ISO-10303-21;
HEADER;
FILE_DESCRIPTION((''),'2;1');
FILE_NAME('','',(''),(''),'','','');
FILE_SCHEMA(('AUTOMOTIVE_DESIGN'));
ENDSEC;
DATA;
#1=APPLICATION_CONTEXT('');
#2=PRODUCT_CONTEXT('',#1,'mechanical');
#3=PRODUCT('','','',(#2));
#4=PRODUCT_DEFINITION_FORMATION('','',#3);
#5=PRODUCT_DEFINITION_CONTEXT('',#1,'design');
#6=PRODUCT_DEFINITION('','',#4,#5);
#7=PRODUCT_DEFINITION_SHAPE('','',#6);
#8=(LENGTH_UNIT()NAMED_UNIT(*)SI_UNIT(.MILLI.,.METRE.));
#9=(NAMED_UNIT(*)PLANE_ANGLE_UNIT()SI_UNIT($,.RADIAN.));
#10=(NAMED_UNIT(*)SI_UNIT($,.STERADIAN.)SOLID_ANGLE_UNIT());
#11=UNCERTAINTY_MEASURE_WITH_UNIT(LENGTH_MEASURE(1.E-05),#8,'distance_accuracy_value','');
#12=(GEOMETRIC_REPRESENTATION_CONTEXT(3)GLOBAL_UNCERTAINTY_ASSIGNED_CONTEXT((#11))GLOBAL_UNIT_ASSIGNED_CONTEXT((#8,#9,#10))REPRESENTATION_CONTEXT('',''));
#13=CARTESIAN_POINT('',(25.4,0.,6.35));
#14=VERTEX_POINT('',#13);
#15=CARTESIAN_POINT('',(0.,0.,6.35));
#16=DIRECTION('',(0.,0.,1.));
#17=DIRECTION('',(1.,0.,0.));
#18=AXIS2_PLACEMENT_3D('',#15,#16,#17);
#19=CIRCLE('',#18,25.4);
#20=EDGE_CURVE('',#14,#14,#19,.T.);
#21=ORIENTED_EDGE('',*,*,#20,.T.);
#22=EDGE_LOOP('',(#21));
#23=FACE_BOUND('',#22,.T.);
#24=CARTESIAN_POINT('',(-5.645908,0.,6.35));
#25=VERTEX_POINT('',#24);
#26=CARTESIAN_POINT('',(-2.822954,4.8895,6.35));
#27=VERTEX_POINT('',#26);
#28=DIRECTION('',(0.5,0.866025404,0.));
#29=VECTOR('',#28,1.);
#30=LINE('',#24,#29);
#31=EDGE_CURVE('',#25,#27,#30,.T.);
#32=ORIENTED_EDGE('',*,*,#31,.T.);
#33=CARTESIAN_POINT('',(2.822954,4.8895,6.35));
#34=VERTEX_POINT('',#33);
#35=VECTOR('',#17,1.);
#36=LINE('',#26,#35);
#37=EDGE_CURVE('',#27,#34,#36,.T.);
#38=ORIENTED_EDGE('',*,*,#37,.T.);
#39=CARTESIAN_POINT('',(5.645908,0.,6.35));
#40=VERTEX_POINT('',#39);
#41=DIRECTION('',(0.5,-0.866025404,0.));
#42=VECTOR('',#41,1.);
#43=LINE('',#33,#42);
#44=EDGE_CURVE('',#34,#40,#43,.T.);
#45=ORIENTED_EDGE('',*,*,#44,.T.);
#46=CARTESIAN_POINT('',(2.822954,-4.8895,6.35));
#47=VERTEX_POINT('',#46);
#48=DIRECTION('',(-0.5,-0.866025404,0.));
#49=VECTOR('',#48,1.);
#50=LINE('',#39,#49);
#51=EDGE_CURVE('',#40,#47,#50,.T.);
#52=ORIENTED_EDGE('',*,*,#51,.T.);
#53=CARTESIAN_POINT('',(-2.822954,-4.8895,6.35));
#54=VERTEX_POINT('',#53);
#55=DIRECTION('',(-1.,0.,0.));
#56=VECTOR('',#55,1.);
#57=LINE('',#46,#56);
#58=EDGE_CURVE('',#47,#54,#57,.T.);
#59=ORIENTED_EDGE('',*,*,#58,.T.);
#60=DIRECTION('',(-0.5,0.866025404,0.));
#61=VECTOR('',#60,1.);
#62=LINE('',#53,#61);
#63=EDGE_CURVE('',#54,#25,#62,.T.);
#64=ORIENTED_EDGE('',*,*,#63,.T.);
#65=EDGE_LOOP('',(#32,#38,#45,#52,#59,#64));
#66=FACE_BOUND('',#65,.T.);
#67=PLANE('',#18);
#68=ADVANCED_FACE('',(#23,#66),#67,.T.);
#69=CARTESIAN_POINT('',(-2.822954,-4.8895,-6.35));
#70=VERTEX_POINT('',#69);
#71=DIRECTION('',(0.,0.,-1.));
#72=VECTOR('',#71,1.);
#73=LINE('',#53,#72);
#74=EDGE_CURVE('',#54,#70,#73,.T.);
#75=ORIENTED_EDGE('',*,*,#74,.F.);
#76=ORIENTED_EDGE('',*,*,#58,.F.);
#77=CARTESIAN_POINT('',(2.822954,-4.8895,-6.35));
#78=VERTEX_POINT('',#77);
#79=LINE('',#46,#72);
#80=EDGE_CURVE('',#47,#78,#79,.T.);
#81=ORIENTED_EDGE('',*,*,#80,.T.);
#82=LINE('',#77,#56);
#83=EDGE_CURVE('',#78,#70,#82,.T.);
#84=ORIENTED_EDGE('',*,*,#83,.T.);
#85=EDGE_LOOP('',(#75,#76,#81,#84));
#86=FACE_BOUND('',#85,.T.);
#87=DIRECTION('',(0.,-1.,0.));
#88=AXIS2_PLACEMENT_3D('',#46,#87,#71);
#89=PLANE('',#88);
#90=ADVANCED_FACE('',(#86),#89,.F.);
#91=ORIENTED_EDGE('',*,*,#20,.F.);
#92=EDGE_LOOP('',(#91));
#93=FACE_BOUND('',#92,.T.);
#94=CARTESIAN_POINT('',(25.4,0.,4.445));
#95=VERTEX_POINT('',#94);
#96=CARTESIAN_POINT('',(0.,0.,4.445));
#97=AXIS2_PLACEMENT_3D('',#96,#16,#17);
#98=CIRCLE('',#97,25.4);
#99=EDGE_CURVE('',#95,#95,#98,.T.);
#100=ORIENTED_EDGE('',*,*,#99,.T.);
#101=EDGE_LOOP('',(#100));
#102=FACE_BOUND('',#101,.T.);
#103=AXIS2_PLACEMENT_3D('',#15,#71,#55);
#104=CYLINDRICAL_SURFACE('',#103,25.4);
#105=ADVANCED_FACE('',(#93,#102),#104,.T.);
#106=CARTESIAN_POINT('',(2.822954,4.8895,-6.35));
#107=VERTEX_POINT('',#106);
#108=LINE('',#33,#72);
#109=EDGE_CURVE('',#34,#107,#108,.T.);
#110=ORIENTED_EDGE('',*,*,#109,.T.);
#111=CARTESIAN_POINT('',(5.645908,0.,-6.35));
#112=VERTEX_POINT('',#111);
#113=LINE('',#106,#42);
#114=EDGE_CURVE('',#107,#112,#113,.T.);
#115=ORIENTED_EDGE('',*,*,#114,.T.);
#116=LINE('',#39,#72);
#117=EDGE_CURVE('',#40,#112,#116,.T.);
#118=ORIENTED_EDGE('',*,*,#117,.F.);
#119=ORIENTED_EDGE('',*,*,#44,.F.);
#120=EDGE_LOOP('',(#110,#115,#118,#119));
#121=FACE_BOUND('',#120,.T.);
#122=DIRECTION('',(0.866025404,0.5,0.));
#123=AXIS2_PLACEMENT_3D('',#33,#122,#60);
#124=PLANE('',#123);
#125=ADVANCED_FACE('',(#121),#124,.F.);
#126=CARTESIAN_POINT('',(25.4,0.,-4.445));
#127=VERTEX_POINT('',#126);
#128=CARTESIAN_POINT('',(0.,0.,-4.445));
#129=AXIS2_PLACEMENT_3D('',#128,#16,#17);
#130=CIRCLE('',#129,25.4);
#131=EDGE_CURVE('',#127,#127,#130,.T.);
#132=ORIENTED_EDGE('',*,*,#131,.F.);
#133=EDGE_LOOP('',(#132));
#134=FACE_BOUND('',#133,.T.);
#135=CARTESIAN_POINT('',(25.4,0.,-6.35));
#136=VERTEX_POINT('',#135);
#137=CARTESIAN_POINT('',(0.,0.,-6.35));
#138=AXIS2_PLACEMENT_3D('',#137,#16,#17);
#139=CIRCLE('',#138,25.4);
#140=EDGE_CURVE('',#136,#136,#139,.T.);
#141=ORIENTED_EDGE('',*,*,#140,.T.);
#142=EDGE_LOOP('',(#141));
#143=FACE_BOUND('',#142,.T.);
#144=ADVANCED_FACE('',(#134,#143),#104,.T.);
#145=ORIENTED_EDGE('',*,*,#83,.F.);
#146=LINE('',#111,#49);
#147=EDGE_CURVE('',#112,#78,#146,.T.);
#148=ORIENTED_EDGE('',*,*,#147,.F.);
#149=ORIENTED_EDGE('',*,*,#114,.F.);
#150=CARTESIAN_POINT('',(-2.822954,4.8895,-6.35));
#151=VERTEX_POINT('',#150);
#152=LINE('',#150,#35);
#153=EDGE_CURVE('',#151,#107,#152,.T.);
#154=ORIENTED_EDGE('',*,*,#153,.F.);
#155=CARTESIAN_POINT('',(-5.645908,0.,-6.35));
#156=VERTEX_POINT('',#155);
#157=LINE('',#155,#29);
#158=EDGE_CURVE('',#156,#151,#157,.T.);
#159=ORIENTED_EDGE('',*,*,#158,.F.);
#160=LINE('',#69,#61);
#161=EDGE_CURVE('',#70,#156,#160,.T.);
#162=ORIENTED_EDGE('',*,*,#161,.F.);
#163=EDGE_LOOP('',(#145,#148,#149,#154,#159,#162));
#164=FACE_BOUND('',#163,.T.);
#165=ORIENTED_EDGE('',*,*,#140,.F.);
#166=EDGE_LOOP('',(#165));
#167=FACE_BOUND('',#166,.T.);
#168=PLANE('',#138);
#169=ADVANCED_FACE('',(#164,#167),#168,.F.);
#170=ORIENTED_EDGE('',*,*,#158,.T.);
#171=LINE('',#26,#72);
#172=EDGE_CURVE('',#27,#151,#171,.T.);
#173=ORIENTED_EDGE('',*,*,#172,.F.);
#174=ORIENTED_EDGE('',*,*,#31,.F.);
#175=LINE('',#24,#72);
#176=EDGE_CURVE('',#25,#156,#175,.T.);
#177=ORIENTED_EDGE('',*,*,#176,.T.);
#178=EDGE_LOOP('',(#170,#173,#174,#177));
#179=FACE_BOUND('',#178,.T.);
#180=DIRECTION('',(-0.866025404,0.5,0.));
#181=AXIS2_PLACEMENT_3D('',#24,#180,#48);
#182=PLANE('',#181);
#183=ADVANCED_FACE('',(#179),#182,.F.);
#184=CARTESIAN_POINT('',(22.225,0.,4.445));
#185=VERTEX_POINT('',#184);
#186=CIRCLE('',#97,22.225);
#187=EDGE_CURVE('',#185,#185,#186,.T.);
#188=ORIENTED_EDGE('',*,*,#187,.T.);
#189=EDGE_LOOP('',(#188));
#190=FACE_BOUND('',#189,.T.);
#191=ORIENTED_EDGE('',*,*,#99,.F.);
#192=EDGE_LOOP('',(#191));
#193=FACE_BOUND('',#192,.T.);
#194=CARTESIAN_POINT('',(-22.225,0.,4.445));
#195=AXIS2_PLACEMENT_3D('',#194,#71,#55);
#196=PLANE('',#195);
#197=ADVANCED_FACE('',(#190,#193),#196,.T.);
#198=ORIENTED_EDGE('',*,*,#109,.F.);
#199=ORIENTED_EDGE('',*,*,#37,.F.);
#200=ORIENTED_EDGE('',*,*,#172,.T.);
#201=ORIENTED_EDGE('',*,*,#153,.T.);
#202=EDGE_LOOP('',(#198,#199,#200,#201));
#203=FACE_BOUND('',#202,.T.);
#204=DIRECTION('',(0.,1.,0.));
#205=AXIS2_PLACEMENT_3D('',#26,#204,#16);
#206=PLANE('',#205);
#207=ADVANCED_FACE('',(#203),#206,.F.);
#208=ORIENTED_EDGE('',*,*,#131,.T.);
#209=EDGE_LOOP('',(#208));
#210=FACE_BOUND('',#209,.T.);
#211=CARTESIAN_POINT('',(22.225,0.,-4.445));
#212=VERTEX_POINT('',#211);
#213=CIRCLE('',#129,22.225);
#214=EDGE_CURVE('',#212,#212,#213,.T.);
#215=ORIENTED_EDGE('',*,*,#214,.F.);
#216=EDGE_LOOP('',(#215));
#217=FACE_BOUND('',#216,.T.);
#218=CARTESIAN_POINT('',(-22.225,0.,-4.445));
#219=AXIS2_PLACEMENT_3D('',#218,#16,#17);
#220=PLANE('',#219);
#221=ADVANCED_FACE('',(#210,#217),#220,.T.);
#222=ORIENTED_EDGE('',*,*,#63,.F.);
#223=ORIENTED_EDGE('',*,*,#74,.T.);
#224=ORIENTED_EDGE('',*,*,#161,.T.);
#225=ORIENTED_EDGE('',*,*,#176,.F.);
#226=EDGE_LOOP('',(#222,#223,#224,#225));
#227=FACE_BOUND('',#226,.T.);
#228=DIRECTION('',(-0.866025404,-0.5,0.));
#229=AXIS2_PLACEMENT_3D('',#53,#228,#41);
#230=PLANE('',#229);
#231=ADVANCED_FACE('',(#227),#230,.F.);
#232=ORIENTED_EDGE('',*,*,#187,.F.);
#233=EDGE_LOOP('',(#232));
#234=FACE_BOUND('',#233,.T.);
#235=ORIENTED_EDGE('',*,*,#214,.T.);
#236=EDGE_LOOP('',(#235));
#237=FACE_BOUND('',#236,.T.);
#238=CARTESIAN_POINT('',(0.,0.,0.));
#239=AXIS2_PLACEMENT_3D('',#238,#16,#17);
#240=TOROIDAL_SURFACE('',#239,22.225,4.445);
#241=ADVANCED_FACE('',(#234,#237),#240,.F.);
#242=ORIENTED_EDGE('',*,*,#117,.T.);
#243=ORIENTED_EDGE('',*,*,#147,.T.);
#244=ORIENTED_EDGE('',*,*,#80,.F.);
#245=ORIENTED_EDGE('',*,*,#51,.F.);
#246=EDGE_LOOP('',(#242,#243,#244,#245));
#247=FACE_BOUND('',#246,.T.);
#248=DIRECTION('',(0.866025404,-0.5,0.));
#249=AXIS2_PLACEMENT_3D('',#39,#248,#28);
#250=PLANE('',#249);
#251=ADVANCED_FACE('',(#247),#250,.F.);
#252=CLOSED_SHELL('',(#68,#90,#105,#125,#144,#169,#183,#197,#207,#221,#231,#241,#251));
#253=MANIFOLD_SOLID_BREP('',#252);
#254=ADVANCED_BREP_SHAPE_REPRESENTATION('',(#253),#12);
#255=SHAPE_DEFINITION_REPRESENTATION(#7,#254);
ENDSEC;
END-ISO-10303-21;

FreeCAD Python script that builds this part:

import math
import FreeCAD as App
import Part
import Sketcher
Q = App.Units.Quantity

doc = App.newDocument("Part")
params = doc.addObject("Spreadsheet::Sheet", "Params")
for row, (alias, value) in enumerate([
    ("sketch1_diameter", "2 in"),
    ("pad1_length", "0.5 in"),
    ("sketch2_radius", "0.175 in"),
    ("sketch2_width", "0.125 in"),
    ("groove_angle", "360 deg"),
], start=1):
    params.set(f"A{row}", alias)
    params.set(f"B{row}", "=" + value)
    params.setAlias(f"B{row}", alias)

body = doc.addObject("PartDesign::Body", "Body")

# Sketch on XY plane
sketch1 = body.newObject("Sketcher::SketchObject", "Sketch")
sketch1.AttachmentSupport = (doc.getObject("XY_Plane"), [""])
sketch1.MapMode = "FlatFace"
sketch1.addGeometry(Part.Circle(App.Vector(0, 0, 0), App.Vector(0, 0, 1), 25), False)
sketch1.addConstraint([
    Sketcher.Constraint("Coincident", 0, 3, -1, 1),
    Sketcher.Constraint("Diameter", 0, Q("2 in")),
])
sketch1.setExpression("Constraints[1]", "Params.sketch1_diameter")
pad1 = body.newObject("PartDesign::Pad", "Pad")
pad1.Profile = sketch1
pad1.setExpression("Length", "Params.pad1_length")
pad1.Midplane = True

# Sketch on XZ plane
sketch2 = body.newObject("Sketcher::SketchObject", "Sketch001")
sketch2.AttachmentSupport = (doc.getObject("XZ_Plane"), [""])
sketch2.MapMode = "FlatFace"
sketch2.addGeometry([
    Part.LineSegment(App.Vector(-25.4, -4.4, 0), App.Vector(-25.4, 4.4, 0)),
    Part.LineSegment(App.Vector(-25.4, 4.4, 0), App.Vector(-22.2, 4.4, 0)),
    Part.ArcOfCircle(Part.Circle(App.Vector(-22.2, 0, 0), App.Vector(0, 0, 1), 4.4), math.radians(-90), math.radians(90)),
    Part.LineSegment(App.Vector(-22.2, -4.4, 0), App.Vector(-25.4, -4.4, 0)),
], False)
sketch2.addConstraint([
    Sketcher.Constraint("Coincident", 0, 2, 1, 1),
    Sketcher.Constraint("Tangent", 1, 2, 2, 2),
    Sketcher.Constraint("Tangent", 2, 1, 3, 1),
    Sketcher.Constraint("Coincident", 3, 2, 0, 1),
    Sketcher.Constraint("Vertical", 0),
    Sketcher.Constraint("Horizontal", 1),
    Sketcher.Constraint("Horizontal", 3),
    Sketcher.Constraint("PointOnObject", 2, 3, -1),
    Sketcher.Constraint("DistanceX", 0, 2, -1, 1, Q("1 in")),
    Sketcher.Constraint("Radius", 2, Q("0.175 in")),
    Sketcher.Constraint("DistanceX", 1, 1, 1, 2, Q("0.125 in")),
])
sketch2.setExpression("Constraints[9]", "Params.sketch2_radius")
sketch2.setExpression("Constraints[10]", "Params.sketch2_width")
groove = body.newObject("PartDesign::Groove", "Groove")
groove.Profile = sketch2
groove.ReferenceAxis = (sketch2, ["V_Axis"])
groove.setExpression("Angle", "Params.groove_angle")

# Sketch on XY plane
sketch3 = body.newObject("Sketcher::SketchObject", "Sketch002")
sketch3.AttachmentSupport = (doc.getObject("XY_Plane"), [""])
sketch3.MapMode = "FlatFace"
sketch3.AttachmentOffset = App.Placement(App.Vector(0, 0, -0.25 * 25.4), App.Rotation())
sketch3.addGeometry([
    Part.LineSegment(App.Vector(-6, 0, 0), App.Vector(-3, 5, 0)),  # 0
    Part.LineSegment(App.Vector(-3, 5, 0), App.Vector(3, 5, 0)),  # 1
    Part.LineSegment(App.Vector(3, 5, 0), App.Vector(6, 0, 0)),  # 2
    Part.LineSegment(App.Vector(6, 0, 0), App.Vector(3, -5, 0)),  # 3
    Part.LineSegment(App.Vector(3, -5, 0), App.Vector(-3, -5, 0)),  # 4
    Part.LineSegment(App.Vector(-3, -5, 0), App.Vector(-6, 0, 0)),  # 5
], False)
sketch3.addConstraint([
    Sketcher.Constraint("Coincident", 0, 2, 1, 1),
    Sketcher.Constraint("Coincident", 1, 2, 2, 1),
    Sketcher.Constraint("Coincident", 2, 2, 3, 1),
    Sketcher.Constraint("Coincident", 3, 2, 4, 1),
    Sketcher.Constraint("Coincident", 4, 2, 5, 1),
    Sketcher.Constraint("Coincident", 5, 2, 0, 1),
    Sketcher.Constraint("Horizontal", 1),
    Sketcher.Constraint("Horizontal", 4),
    Sketcher.Constraint("Symmetric", 0, 2, 3, 2, -1, 1),
    Sketcher.Constraint("Symmetric", 2, 2, 5, 2, -1, 1),
    Sketcher.Constraint("PointOnObject", 2, 2, -1),
    Sketcher.Constraint("Parallel", 2, 5),
    Sketcher.Constraint("Vertical", 1, 2, 3, 2),
    Sketcher.Constraint("Angle", 0, Q("60 deg")),
    Sketcher.Constraint("DistanceY", 3, 2, 1, 2, Q("0.385 in")),
    Sketcher.Constraint("DistanceX", 1, 1, 1, 2, Q("5.645908 mm")),
])
pocket1 = body.newObject("PartDesign::Pocket", "Pocket")
pocket1.Profile = sketch3
pocket1.Type = "ThroughAll"
pocket1.Reversed = True

doc.recompute()
